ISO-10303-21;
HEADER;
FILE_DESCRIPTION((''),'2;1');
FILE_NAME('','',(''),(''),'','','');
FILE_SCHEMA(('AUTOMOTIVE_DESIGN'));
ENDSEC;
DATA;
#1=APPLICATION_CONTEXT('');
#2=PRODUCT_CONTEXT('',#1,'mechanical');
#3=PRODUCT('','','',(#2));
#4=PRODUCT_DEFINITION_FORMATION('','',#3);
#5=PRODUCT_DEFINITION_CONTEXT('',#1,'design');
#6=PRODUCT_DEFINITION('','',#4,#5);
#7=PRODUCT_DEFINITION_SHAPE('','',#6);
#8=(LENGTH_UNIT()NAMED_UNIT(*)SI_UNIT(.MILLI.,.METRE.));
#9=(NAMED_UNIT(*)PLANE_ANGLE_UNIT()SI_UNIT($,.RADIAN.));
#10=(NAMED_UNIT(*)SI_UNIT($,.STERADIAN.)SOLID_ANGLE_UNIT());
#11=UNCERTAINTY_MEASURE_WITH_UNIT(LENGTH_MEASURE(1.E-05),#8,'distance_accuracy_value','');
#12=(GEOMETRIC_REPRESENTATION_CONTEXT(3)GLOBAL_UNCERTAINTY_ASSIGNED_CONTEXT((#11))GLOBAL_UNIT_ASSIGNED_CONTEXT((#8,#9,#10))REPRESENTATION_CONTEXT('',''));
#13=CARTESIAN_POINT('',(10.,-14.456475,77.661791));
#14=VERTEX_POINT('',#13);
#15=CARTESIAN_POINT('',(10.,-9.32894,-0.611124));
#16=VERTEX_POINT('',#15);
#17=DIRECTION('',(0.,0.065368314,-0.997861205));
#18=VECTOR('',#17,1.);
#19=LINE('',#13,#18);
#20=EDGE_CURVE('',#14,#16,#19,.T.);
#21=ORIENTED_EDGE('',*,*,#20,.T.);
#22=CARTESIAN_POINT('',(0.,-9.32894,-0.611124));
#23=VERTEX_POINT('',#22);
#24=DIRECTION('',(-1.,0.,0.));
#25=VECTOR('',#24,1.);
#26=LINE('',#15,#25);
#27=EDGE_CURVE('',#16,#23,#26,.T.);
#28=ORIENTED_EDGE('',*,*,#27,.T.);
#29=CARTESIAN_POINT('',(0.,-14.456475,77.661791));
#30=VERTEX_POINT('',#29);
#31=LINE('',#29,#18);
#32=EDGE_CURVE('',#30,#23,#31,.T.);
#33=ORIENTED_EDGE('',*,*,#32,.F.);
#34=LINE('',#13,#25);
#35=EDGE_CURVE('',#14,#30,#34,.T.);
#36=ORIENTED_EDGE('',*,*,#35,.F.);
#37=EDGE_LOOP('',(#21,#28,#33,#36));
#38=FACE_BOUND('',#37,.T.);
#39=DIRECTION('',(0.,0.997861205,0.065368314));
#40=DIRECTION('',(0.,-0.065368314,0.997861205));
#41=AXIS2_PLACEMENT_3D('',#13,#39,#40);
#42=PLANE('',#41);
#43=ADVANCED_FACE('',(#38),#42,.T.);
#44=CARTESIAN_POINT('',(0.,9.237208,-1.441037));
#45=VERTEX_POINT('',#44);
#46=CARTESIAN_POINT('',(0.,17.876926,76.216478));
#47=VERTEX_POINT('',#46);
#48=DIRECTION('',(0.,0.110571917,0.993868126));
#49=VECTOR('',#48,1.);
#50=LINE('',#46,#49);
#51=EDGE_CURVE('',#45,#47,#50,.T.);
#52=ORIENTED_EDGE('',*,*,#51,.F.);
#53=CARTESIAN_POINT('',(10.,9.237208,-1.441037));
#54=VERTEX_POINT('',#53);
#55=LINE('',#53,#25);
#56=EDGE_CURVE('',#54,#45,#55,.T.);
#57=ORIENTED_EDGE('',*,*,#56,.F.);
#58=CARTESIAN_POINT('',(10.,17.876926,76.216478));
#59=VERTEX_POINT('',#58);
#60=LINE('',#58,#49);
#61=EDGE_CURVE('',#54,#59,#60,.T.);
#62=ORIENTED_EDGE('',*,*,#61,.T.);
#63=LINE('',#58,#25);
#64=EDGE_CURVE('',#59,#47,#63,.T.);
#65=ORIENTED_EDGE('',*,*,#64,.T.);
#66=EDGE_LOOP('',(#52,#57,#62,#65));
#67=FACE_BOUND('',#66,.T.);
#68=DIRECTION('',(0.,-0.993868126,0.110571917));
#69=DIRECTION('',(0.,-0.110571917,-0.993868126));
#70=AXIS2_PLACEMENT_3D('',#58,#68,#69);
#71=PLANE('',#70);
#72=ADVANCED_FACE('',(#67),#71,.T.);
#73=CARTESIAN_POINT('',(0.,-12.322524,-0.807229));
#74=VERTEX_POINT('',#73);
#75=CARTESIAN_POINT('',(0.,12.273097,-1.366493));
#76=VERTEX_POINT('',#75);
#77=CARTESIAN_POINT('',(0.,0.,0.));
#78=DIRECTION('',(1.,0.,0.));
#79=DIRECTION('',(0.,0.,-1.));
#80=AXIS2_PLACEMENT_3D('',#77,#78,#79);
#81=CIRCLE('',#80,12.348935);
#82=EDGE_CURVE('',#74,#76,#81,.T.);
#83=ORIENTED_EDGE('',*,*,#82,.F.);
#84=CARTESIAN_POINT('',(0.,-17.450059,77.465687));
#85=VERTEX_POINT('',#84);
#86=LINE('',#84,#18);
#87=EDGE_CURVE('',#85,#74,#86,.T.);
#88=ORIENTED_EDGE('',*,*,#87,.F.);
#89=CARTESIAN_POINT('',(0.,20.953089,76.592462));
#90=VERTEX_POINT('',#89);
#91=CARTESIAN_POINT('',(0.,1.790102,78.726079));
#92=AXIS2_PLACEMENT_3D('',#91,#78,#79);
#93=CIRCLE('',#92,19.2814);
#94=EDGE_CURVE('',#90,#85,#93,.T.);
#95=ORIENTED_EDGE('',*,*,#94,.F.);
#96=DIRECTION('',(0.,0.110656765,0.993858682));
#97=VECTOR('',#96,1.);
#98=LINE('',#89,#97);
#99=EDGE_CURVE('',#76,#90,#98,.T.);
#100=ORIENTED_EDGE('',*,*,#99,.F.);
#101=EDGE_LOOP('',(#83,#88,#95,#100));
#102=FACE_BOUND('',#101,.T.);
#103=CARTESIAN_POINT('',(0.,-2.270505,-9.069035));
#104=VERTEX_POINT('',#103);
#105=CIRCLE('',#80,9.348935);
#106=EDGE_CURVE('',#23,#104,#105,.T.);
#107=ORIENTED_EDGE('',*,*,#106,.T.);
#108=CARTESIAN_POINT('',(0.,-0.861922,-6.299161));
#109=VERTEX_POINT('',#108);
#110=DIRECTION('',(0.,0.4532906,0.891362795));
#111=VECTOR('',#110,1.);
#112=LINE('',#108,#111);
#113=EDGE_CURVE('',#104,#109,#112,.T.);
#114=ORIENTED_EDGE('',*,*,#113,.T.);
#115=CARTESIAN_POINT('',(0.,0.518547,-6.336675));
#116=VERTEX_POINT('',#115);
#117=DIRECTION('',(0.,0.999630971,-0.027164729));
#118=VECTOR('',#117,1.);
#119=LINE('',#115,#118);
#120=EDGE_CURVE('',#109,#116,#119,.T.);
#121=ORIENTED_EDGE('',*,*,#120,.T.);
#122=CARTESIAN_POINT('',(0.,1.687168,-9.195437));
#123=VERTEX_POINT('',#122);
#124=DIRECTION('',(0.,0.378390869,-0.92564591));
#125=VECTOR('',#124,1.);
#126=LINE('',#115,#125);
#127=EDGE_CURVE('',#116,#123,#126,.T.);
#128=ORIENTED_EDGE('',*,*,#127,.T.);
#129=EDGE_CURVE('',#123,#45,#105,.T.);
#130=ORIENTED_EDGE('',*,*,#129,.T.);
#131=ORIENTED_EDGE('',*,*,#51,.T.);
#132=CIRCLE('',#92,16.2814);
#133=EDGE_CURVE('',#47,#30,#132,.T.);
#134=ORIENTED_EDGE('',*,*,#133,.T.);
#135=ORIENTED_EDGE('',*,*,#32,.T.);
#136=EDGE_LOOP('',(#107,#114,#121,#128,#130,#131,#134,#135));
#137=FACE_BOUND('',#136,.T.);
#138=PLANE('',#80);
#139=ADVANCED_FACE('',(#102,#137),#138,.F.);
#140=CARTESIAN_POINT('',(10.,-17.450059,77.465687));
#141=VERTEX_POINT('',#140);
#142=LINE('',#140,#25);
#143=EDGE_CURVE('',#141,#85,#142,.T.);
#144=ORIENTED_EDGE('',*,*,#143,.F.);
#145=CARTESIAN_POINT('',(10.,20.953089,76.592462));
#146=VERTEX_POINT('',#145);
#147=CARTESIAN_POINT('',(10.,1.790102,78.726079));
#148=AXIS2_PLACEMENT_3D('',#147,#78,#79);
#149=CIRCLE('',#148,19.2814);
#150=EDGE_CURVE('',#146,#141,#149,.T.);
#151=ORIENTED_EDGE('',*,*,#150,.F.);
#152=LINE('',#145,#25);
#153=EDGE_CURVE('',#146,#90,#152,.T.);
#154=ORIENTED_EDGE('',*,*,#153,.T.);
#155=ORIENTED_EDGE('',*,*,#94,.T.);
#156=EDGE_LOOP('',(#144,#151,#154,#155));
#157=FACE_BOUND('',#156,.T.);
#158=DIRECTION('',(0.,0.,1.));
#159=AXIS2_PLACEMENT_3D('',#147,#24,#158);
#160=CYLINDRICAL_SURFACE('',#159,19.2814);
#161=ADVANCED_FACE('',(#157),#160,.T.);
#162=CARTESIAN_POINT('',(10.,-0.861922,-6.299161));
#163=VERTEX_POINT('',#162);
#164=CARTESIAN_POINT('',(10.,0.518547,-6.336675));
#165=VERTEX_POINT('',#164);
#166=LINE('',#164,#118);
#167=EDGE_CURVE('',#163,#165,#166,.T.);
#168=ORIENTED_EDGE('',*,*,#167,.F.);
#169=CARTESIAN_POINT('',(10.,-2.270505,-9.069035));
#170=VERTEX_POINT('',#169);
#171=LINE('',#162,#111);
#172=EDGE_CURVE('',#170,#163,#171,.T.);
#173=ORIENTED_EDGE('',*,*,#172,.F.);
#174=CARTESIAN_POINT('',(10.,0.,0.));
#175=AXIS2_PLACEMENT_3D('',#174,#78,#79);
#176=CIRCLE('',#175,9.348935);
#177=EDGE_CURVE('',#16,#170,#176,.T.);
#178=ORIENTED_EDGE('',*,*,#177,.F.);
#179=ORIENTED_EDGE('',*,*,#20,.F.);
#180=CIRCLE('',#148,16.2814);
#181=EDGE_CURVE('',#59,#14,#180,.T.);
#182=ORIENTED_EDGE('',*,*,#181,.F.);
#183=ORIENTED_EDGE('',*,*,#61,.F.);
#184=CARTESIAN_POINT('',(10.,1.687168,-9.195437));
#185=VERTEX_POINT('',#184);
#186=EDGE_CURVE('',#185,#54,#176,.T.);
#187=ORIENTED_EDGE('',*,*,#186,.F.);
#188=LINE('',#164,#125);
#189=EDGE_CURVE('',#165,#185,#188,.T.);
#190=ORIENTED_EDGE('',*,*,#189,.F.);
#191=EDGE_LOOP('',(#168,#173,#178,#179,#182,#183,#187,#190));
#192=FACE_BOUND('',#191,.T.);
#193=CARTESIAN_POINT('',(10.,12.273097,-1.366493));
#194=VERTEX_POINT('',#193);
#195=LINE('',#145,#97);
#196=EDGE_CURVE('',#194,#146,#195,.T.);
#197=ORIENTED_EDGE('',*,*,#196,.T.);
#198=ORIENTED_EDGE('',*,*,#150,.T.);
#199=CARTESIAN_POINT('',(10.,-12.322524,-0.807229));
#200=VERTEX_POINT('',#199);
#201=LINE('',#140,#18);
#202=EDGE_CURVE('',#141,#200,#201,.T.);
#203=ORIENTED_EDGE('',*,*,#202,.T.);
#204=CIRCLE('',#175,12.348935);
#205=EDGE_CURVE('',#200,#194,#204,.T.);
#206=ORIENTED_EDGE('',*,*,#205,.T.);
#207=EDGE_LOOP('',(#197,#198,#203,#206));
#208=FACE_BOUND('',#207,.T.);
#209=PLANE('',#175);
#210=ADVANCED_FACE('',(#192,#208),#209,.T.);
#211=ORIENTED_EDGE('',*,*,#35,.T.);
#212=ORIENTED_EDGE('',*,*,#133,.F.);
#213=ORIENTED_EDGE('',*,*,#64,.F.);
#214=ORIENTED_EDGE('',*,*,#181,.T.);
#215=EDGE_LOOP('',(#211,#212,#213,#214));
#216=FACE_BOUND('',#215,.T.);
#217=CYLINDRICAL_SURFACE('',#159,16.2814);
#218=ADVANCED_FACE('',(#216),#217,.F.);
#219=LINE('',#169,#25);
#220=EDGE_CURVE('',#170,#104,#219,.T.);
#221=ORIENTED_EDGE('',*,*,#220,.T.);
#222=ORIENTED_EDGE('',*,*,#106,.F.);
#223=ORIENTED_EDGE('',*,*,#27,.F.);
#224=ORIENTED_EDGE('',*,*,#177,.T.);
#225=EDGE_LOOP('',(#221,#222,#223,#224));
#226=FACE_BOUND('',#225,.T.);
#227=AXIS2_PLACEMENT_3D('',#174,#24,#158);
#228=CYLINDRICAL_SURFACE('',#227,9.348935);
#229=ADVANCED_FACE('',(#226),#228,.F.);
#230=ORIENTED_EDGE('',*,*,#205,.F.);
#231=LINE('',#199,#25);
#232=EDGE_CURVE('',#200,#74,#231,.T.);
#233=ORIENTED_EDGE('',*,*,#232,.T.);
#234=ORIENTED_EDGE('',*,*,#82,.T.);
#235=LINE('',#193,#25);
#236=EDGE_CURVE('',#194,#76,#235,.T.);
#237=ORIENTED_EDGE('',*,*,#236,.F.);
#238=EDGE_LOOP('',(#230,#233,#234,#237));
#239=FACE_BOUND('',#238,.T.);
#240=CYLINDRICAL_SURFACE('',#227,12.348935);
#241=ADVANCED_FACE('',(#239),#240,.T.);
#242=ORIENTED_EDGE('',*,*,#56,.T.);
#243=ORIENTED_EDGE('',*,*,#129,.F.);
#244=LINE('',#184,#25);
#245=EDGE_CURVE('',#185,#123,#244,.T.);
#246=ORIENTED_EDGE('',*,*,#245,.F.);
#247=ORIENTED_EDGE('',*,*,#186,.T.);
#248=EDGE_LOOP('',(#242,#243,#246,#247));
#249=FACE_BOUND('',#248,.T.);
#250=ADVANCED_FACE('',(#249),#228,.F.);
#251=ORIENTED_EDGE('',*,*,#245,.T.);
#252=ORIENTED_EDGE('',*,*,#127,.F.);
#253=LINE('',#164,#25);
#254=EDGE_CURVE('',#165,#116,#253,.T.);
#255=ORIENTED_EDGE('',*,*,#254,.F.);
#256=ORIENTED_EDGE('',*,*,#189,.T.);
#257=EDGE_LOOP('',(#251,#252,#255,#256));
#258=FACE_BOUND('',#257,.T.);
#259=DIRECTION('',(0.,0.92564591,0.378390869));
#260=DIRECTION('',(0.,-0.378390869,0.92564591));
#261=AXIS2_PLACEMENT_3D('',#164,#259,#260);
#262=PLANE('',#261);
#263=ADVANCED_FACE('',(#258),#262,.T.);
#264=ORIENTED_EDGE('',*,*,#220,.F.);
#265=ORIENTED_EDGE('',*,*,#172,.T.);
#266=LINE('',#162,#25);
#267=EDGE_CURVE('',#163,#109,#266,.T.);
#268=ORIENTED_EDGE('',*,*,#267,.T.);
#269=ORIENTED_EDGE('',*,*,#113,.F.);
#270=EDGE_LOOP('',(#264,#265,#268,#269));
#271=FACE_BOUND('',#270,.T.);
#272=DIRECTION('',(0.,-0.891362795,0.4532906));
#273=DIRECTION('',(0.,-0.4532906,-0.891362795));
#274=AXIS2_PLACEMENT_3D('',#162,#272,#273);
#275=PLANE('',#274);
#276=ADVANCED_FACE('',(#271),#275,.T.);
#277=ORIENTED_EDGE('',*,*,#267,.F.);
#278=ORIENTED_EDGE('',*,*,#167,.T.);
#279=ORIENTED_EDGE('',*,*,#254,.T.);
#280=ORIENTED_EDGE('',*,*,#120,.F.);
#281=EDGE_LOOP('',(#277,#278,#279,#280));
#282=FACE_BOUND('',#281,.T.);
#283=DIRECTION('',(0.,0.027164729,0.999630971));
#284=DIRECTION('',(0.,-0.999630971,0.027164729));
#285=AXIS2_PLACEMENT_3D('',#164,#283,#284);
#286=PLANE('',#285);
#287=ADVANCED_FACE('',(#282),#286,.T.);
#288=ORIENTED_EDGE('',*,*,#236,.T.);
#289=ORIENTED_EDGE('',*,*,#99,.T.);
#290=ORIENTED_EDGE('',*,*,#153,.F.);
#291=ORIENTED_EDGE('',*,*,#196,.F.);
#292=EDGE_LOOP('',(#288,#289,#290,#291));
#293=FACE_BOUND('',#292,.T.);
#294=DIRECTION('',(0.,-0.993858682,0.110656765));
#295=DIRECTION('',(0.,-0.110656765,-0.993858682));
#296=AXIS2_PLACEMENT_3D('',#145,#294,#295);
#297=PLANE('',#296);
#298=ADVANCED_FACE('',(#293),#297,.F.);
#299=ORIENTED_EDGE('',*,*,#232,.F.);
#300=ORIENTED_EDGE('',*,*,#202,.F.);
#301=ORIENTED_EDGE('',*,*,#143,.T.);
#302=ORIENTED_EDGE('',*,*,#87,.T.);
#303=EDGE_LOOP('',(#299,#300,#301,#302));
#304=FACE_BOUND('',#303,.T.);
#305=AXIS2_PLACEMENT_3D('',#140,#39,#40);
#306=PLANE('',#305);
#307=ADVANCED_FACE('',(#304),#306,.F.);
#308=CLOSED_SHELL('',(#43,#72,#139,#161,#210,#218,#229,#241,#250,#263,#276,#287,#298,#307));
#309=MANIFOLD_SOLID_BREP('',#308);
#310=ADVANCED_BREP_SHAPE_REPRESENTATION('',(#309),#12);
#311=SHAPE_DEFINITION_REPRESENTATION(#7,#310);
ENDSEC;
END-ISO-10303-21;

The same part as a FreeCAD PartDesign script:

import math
import FreeCAD as App
import Part
import Sketcher
from FreeCAD import Vector
Q = App.Units.Quantity

doc = App.newDocument("Part")
params = doc.addObject("Spreadsheet::Sheet", "Params")
for row, (alias, value) in enumerate([
    ("pad1_length", "10 mm"),
    ("pad2_length", "10 mm"),
], start=1):
    params.set(f"A{row}", alias)
    params.set(f"B{row}", "=" + value)
    params.setAlias(f"B{row}", alias)

body = doc.addObject("PartDesign::Body", "Body")

# Sketch on YZ plane
sketch1 = body.newObject("Sketcher::SketchObject", "Sketch")
sketch1.AttachmentSupport = (doc.getObject("YZ_Plane"), [""])
sketch1.MapMode = "FlatFace"
sketch1.addGeometry(Part.LineSegment(Vector(12, -1, 0), Vector(21, 77, 0)), False)
sketch1.addGeometry(Part.ArcOfCircle(Part.Circle(Vector(2, 79, 0), Vector(0, 0, 1), 19), math.radians(-6), math.radians(184)), False)
sketch1.addGeometry(Part.LineSegment(Vector(-17, 77, 0), Vector(-12, -1, 0)), False)
sketch1.addGeometry(Part.ArcOfCircle(Part.Circle(Vector(0, 0, 0), Vector(0, 0, 1), 12), math.radians(-176), math.radians(-6)), False)
sketch1.addGeometry(Part.ArcOfCircle(Part.Circle(Vector(2, 79, 0), Vector(0, 0, 1), 16), math.radians(-9), math.radians(184)), False)
sketch1.addGeometry(Part.LineSegment(Vector(18, 76, 0), Vector(9, -1, 0)), False)
sketch1.addGeometry(Part.ArcOfCircle(Part.Circle(Vector(0, 0, 0), Vector(0, 0, 1), 9), math.radians(-176), math.radians(-9)), False)
sketch1.addGeometry(Part.LineSegment(Vector(-9, -1, 0), Vector(-14, 78, 0)), False)
sketch1.addConstraint(Sketcher.Constraint("Tangent", 0, 2, 1, 1))
sketch1.addConstraint(Sketcher.Constraint("Tangent", 1, 2, 2, 1))
sketch1.addConstraint(Sketcher.Constraint("Tangent", 2, 2, 3, 1))
sketch1.addConstraint(Sketcher.Constraint("Tangent", 3, 2, 0, 1))
sketch1.addConstraint(Sketcher.Constraint("Coincident", 4, 1, 5, 1))
sketch1.addConstraint(Sketcher.Constraint("Coincident", 5, 2, 6, 2))
sketch1.addConstraint(Sketcher.Constraint("Tangent", 6, 1, 7, 1))
sketch1.addConstraint(Sketcher.Constraint("Tangent", 7, 2, 4, 2))
sketch1.addConstraint(Sketcher.Constraint("Coincident", 3, 3, -1, 1))
sketch1.addConstraint(Sketcher.Constraint("Coincident", 6, 3, -1, 1))
sketch1.addConstraint(Sketcher.Constraint("Coincident", 4, 3, 1, 3))
sketch1.addConstraint(Sketcher.Constraint("Parallel", 2, 7))
sketch1.addConstraint(Sketcher.Constraint("Radius", 1, Q("19.2814 mm")))
sketch1.addConstraint(Sketcher.Constraint("Radius", 4, Q("16.2814 mm")))
sketch1.addConstraint(Sketcher.Constraint("Radius", 3, Q("12.348935 mm")))
sketch1.addConstraint(Sketcher.Constraint("DistanceY", 4, 1, 1, 3, Q("2.509601 mm")))
sketch1.addConstraint(Sketcher.Constraint("Distance", 5, Q("78.136639 mm")))
sketch1.addConstraint(Sketcher.Constraint("DistanceY", -1, 1, 1, 3, Q("78.726079 mm")))
sketch1.addConstraint(Sketcher.Constraint("DistanceX", -1, 1, 0, 2, Q("20.953089 mm")))
pad1 = body.newObject("PartDesign::Pad", "Pad")
pad1.Profile = sketch1
pad1.setExpression("Length", "Params.pad1_length")

# Sketch on YZ plane
sketch2 = body.newObject("Sketcher::SketchObject", "Sketch001")
sketch2.AttachmentSupport = (doc.getObject("YZ_Plane"), [""])
sketch2.MapMode = "FlatFace"
sketch2.addGeometry(Part.LineSegment(Vector(0.5, -6.3, 0), Vector(1.7, -9.2, 0)), False)
sketch2.addGeometry(Part.ArcOfCircle(Part.Circle(Vector(0, 0, 0), Vector(0, 0, 1), 9.3), math.radians(-104), math.radians(-80)), False)
sketch2.addGeometry(Part.LineSegment(Vector(-2.3, -9.1, 0), Vector(-0.9, -6.3, 0)), False)
sketch2.addGeometry(Part.LineSegment(Vector(-0.9, -6.3, 0), Vector(0.5, -6.3, 0)), False)
sketch2.addConstraint(Sketcher.Constraint("Coincident", 0, 2, 1, 2))
sketch2.addConstraint(Sketcher.Constraint("Coincident", 1, 1, 2, 1))
sketch2.addConstraint(Sketcher.Constraint("Coincident", 2, 2, 3, 1))
sketch2.addConstraint(Sketcher.Constraint("Coincident", 3, 2, 0, 1))
sketch2.addConstraint(Sketcher.Constraint("Coincident", 1, 3, -1, 1))
sketch2.addConstraint(Sketcher.Constraint("Radius", 1, Q("9.348935 mm")))
sketch2.addConstraint(Sketcher.Constraint("DistanceY", 0, 2, 1, 1, Q("0.126402 mm")))
sketch2.addConstraint(Sketcher.Constraint("Distance", 2, Q("3.10746 mm")))
sketch2.addConstraint(Sketcher.Constraint("Distance", 3, Q("1.380979 mm")))
sketch2.addConstraint(Sketcher.Constraint("DistanceY", 2, 2, -1, 1, Q("6.299161 mm")))
sketch2.addConstraint(Sketcher.Constraint("DistanceX", 2, 2, 0, 2, Q("2.54909 mm")))
sketch2.addConstraint(Sketcher.Constraint("DistanceX", 2, 2, 3, 2, Q("1.380469 mm")))
pad2 = body.newObject("PartDesign::Pad", "Pad001")
pad2.Profile = sketch2
pad2.setExpression("Length", "Params.pad2_length")

doc.recompute()
